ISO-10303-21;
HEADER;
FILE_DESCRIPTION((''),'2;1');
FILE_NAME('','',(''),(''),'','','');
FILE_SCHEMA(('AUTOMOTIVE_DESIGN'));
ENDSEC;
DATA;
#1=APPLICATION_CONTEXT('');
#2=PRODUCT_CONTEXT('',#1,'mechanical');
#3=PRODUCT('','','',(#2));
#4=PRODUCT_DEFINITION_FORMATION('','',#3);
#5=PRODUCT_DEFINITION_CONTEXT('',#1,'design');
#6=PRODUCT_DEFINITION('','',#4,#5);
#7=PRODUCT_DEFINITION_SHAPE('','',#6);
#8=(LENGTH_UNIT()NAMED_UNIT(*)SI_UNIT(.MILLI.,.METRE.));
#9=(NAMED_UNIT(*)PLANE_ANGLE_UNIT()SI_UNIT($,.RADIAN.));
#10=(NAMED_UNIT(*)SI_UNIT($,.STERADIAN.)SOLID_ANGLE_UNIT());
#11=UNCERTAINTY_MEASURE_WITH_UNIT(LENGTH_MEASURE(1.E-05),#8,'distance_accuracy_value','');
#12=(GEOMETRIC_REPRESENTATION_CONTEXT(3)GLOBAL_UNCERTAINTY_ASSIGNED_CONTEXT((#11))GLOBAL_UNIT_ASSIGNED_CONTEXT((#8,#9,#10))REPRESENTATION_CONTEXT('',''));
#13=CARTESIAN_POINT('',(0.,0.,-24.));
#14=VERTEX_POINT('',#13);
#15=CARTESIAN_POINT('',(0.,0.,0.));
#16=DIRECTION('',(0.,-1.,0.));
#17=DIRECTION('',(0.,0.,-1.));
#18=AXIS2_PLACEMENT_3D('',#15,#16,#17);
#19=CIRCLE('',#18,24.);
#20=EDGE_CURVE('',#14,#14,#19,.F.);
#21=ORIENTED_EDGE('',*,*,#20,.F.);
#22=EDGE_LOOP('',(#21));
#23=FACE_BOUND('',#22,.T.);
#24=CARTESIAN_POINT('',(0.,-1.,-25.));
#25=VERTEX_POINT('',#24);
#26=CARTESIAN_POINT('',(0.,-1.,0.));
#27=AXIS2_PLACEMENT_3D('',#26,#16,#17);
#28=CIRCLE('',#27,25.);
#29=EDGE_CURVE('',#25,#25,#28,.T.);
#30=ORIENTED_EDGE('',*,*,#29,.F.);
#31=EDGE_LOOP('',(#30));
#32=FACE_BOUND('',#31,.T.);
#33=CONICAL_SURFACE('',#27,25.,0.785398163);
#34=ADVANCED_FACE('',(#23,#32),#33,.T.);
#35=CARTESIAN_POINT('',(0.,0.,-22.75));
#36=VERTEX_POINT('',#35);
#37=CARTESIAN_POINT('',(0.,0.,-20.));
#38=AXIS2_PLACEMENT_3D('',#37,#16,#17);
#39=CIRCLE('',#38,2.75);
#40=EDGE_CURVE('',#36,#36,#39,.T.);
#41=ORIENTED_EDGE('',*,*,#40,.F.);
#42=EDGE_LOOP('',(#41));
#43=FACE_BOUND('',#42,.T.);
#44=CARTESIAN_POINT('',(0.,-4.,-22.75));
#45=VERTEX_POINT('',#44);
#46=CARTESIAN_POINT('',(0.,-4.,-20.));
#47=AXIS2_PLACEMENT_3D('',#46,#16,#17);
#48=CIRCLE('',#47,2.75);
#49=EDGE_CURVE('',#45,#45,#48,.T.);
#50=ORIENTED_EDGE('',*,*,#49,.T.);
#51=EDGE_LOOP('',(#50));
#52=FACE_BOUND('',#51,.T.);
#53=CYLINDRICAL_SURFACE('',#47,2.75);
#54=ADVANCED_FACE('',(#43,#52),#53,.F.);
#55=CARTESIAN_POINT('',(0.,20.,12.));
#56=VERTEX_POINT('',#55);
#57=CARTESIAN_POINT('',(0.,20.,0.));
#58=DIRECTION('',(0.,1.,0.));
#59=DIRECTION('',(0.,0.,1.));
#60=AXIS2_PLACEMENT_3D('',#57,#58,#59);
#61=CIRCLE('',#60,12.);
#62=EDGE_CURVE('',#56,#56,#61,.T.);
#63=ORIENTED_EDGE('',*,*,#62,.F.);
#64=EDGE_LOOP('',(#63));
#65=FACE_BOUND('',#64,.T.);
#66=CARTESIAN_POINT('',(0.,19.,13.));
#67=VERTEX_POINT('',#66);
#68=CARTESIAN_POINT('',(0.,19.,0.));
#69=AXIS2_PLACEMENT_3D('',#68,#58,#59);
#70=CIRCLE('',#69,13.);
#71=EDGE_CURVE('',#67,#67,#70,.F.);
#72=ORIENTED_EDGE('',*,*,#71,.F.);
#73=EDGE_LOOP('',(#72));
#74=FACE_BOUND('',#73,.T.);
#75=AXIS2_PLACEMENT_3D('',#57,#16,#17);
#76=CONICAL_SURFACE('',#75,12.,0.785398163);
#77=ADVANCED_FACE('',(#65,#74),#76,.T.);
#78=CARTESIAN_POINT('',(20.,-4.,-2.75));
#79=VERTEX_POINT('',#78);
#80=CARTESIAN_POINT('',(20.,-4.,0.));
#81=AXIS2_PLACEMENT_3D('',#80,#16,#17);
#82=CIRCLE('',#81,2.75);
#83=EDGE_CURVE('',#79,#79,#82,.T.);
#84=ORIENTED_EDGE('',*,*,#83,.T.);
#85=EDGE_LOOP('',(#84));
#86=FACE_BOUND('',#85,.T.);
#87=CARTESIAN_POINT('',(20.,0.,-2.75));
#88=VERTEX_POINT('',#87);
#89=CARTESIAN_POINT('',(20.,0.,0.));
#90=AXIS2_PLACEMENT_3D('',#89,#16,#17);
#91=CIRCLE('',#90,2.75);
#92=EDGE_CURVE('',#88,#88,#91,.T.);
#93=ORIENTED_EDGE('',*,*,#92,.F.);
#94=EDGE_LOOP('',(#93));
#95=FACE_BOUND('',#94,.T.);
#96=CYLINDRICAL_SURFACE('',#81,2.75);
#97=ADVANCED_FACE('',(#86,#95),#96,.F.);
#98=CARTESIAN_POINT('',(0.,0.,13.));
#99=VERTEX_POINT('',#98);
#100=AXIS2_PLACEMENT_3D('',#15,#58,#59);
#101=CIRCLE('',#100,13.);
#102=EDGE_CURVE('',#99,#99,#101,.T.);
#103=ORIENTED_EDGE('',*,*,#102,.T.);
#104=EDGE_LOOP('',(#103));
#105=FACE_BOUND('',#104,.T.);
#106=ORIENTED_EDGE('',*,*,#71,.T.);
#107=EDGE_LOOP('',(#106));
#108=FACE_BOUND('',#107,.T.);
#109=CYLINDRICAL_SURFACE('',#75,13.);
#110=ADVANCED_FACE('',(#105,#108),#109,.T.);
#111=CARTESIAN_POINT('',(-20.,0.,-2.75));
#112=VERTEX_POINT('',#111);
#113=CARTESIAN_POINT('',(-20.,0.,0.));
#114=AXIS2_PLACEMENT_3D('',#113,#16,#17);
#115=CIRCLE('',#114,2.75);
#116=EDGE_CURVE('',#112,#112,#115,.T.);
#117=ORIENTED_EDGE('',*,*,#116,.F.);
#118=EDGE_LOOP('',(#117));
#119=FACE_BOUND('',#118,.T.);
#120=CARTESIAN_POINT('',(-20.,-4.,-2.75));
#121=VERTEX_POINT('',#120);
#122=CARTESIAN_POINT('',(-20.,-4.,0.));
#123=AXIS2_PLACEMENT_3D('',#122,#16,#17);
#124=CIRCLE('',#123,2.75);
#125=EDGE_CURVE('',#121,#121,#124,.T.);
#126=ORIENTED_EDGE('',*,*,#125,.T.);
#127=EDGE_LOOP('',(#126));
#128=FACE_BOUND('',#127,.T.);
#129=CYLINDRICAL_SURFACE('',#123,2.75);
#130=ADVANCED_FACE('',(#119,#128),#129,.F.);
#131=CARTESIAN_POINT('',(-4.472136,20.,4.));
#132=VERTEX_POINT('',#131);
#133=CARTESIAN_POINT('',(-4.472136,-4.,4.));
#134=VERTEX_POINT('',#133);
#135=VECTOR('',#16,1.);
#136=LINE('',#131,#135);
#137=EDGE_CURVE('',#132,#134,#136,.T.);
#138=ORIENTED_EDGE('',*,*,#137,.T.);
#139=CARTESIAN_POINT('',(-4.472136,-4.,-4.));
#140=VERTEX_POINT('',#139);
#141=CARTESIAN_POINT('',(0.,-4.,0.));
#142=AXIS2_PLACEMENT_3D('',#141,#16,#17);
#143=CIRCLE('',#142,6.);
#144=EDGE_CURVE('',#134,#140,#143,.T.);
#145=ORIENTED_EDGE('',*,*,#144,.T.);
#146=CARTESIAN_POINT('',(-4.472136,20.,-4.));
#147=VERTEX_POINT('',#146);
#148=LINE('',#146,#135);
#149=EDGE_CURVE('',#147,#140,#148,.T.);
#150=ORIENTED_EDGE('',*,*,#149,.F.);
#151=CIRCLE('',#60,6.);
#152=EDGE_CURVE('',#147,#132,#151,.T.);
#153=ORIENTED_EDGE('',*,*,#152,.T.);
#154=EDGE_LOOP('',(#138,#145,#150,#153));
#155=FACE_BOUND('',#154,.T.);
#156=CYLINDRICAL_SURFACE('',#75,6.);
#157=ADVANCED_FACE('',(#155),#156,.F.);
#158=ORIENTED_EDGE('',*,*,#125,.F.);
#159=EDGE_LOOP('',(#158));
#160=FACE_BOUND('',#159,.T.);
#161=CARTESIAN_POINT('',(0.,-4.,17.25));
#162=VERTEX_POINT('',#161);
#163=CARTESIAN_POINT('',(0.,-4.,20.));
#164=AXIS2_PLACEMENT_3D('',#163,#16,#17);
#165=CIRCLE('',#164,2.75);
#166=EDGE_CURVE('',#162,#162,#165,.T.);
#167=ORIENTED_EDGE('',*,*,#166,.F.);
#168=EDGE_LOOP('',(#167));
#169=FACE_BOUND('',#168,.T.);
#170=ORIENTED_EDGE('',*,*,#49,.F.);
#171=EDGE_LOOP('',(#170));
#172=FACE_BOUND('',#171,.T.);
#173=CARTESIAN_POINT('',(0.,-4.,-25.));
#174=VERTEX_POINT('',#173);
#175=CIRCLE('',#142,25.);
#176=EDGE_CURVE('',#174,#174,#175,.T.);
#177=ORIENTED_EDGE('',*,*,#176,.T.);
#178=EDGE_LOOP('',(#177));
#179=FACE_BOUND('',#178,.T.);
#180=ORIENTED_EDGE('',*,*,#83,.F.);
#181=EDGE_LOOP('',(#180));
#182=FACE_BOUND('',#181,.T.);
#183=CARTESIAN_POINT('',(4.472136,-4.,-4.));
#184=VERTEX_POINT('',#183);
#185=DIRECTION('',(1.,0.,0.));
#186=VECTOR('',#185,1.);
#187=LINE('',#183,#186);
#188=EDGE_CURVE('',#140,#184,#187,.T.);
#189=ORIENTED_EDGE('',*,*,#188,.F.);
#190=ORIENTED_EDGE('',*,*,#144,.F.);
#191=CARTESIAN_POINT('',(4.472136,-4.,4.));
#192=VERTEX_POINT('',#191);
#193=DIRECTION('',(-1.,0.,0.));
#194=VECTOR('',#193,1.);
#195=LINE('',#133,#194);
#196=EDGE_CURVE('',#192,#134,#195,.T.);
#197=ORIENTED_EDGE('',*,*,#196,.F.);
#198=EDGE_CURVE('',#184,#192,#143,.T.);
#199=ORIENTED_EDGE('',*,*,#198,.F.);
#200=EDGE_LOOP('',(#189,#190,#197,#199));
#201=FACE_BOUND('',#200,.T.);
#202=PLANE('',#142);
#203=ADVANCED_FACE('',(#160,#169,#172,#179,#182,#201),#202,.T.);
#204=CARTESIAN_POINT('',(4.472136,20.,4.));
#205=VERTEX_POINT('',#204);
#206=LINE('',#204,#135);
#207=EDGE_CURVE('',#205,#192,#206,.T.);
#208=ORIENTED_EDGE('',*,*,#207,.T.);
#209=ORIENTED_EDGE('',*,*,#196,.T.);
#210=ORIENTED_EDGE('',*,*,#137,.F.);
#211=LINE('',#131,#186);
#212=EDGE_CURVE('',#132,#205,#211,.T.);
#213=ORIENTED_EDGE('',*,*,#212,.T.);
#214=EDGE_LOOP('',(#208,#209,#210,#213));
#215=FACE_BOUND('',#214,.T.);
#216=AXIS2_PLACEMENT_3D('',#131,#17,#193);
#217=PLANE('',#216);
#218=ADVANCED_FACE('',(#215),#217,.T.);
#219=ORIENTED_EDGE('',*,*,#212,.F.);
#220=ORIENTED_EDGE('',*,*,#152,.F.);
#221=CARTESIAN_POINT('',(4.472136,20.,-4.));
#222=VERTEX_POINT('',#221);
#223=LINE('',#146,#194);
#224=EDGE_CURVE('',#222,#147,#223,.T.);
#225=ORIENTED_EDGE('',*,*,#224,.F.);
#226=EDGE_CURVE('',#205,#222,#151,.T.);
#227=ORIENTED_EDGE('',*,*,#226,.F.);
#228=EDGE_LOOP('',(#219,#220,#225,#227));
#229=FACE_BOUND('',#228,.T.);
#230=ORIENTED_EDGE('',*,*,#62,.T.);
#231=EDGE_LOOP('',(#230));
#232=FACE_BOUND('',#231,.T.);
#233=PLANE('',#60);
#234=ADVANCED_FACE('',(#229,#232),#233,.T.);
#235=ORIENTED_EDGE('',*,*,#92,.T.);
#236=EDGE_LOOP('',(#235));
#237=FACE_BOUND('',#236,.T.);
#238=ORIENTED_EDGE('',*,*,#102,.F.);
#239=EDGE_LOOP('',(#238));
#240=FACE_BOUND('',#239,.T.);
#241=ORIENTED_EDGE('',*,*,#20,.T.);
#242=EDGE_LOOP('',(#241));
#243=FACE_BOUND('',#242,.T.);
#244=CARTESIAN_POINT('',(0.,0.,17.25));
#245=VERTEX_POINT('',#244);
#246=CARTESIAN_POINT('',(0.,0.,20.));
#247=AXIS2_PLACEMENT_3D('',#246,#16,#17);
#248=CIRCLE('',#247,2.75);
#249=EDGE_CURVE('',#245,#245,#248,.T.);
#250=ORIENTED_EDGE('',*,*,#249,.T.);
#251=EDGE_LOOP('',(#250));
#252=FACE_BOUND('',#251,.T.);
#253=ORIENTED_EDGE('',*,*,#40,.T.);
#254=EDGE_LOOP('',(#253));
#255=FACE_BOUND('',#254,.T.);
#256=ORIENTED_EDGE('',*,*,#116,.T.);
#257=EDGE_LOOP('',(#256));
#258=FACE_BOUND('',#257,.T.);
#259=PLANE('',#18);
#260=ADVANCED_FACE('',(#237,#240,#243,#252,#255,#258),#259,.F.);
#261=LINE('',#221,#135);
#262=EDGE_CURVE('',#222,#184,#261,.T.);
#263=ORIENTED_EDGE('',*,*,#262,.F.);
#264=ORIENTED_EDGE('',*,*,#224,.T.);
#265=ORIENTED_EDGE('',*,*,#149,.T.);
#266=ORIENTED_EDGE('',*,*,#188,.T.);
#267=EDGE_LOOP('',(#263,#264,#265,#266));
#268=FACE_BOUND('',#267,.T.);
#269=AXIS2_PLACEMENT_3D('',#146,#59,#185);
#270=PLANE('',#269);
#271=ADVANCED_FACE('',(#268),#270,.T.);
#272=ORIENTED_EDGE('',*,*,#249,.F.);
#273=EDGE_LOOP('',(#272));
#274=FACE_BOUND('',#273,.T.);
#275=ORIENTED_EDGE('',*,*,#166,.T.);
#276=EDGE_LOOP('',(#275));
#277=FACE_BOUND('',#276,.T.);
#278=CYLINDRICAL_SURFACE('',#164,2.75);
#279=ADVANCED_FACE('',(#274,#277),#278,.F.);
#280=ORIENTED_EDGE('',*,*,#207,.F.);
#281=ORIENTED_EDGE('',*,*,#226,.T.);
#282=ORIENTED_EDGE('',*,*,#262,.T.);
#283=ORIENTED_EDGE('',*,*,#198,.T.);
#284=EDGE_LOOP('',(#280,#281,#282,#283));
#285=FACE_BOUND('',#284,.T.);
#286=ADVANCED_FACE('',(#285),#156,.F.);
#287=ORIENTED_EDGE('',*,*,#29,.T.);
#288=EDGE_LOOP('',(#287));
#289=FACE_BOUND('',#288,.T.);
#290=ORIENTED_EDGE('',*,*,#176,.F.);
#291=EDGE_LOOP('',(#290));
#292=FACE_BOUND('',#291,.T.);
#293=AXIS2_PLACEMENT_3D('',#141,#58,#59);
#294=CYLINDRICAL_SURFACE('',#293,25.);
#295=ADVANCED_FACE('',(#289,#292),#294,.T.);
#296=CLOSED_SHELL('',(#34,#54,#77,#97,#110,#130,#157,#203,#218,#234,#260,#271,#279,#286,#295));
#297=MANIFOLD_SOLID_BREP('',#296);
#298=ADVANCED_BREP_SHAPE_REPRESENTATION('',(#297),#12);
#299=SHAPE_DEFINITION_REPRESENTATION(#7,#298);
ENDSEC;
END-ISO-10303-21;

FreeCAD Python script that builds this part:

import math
import FreeCAD as App
import Part
import Sketcher


def edges_at(feature, points):
    """Names of the edges that pass closest to the given points."""
    edges = feature.Shape.Edges
    near = lambda p: min(range(len(edges)), key=lambda i: edges[i].distToShape(Part.Vertex(*p))[0])
    return sorted({f"Edge{near(p) + 1}" for p in points})

doc = App.newDocument("Part")
body = doc.addObject("PartDesign::Body", "Body")

# Sketch on XZ plane
sketch1 = body.newObject("Sketcher::SketchObject", "Sketch")
sketch1.AttachmentSupport = (doc.getObject("XZ_Plane"), [""])
sketch1.MapMode = "FlatFace"
sketch1.addGeometry(Part.Circle(App.Vector(0, 0, 0), App.Vector(0, 0, 1), 13), False)
sketch1.addGeometry(Part.ArcOfCircle(Part.Circle(App.Vector(0, 0, 0), App.Vector(0, 0, 1), 6), math.radians(138), math.radians(222)), False)
sketch1.addGeometry(Part.LineSegment(App.Vector(-4, -4, 0), App.Vector(4, -4, 0)), False)
sketch1.addGeometry(Part.ArcOfCircle(Part.Circle(App.Vector(0, 0, 0), App.Vector(0, 0, 1), 6), math.radians(-42), math.radians(42)), False)
sketch1.addGeometry(Part.LineSegment(App.Vector(4, 4, 0), App.Vector(-4, 4, 0)), False)
sketch1.addConstraint(Sketcher.Constraint("Coincident", 1, 2, 2, 1))
sketch1.addConstraint(Sketcher.Constraint("Coincident", 2, 2, 3, 1))
sketch1.addConstraint(Sketcher.Constraint("Coincident", 3, 2, 4, 1))
sketch1.addConstraint(Sketcher.Constraint("Coincident", 4, 2, 1, 1))
sketch1.addConstraint(Sketcher.Constraint("Horizontal", 2))
sketch1.addConstraint(Sketcher.Constraint("Horizontal", 4))
sketch1.addConstraint(Sketcher.Constraint("Coincident", 0, 3, -1, 1))
sketch1.addConstraint(Sketcher.Constraint("Coincident", 1, 3, -1, 1))
sketch1.addConstraint(Sketcher.Constraint("Coincident", 3, 3, -1, 1))
sketch1.addConstraint(Sketcher.Constraint("Equal", 1, 3))
sketch1.addConstraint(Sketcher.Constraint("Vertical", 2, 2, 3, 2))
sketch1.addConstraint(Sketcher.Constraint("Diameter", 0, 26.0))
sketch1.addConstraint(Sketcher.Constraint("Radius", 1, 6.0))
sketch1.addConstraint(Sketcher.Constraint("DistanceY", 1, 2, -1, 1, 4.0))
pad1 = body.newObject("PartDesign::Pad", "Pad")
pad1.Profile = sketch1
pad1.Length = 20
pad1.Reversed = True

# Sketch on XZ plane
sketch2 = body.newObject("Sketcher::SketchObject", "Sketch001")
sketch2.AttachmentSupport = (doc.getObject("XZ_Plane"), [""])
sketch2.MapMode = "FlatFace"
sketch2.AttachmentOffset = App.Placement(App.Vector(0, 0, 4), App.Rotation())
sketch2.addGeometry(Part.Circle(App.Vector(0, 0, 0), App.Vector(0, 0, 1), 25), False)
sketch2.addGeometry(Part.ArcOfCircle(Part.Circle(App.Vector(0, 0, 0), App.Vector(0, 0, 1), 6), math.radians(-42), math.radians(42)), False)
sketch2.addGeometry(Part.LineSegment(App.Vector(4, -4, 0), App.Vector(-4, -4, 0)), False)
sketch2.addGeometry(Part.ArcOfCircle(Part.Circle(App.Vector(0, 0, 0), App.Vector(0, 0, 1), 6), math.radians(138), math.radians(222)), False)
sketch2.addGeometry(Part.LineSegment(App.Vector(-4, 4, 0), App.Vector(4, 4, 0)), False)
sketch2.addConstraint(Sketcher.Constraint("Coincident", 1, 1, 2, 1))
sketch2.addConstraint(Sketcher.Constraint("Coincident", 2, 2, 3, 2))
sketch2.addConstraint(Sketcher.Constraint("Coincident", 3, 1, 4, 1))
sketch2.addConstraint(Sketcher.Constraint("Coincident", 4, 2, 1, 2))
sketch2.addConstraint(Sketcher.Constraint("Horizontal", 2))
sketch2.addConstraint(Sketcher.Constraint("Horizontal", 4))
sketch2.addConstraint(Sketcher.Constraint("Coincident", 0, 3, -1, 1))
sketch2.addConstraint(Sketcher.Constraint("Coincident", 1, 3, -1, 1))
sketch2.addConstraint(Sketcher.Constraint("Coincident", 3, 3, -1, 1))
sketch2.addConstraint(Sketcher.Constraint("Equal", 1, 3))
sketch2.addConstraint(Sketcher.Constraint("Vertical", 2, 2, 3, 1))
sketch2.addConstraint(Sketcher.Constraint("Diameter", 0, 50.0))
sketch2.addConstraint(Sketcher.Constraint("Radius", 1, 6.0))
sketch2.addConstraint(Sketcher.Constraint("DistanceY", 1, 1, -1, 1, 4.0))
pad2 = body.newObject("PartDesign::Pad", "Pad001")
pad2.Profile = sketch2
pad2.Length = 4
pad2.Reversed = True

# Sketch on XZ plane
sketch3 = body.newObject("Sketcher::SketchObject", "Sketch002")
sketch3.AttachmentSupport = (doc.getObject("XZ_Plane"), [""])
sketch3.MapMode = "FlatFace"
sketch3.AttachmentOffset = App.Placement(App.Vector(0, 0, 4), App.Rotation())
sketch3.addGeometry(Part.Circle(App.Vector(0, -20, 0), App.Vector(0, 0, 1), 2.8), False)
sketch3.addGeometry(Part.Circle(App.Vector(-20, 0, 0), App.Vector(0, 0, 1), 2.8), False)
sketch3.addGeometry(Part.Circle(App.Vector(0, 20, 0), App.Vector(0, 0, 1), 2.8), False)
sketch3.addGeometry(Part.Circle(App.Vector(20, 0, 0), App.Vector(0, 0, 1), 2.8), False)
sketch3.addConstraint(Sketcher.Constraint("Equal", 0, 1))
sketch3.addConstraint(Sketcher.Constraint("Equal", 1, 2))
sketch3.addConstraint(Sketcher.Constraint("Equal", 2, 3))
sketch3.addConstraint(Sketcher.Constraint("Symmetric", 0, 3, 2, 3, -1, 1))
sketch3.addConstraint(Sketcher.Constraint("Symmetric", 1, 3, 3, 3, -1, 1))
sketch3.addConstraint(Sketcher.Constraint("PointOnObject", 0, 3, -2))
sketch3.addConstraint(Sketcher.Constraint("PointOnObject", 1, 3, -1))
sketch3.addConstraint(Sketcher.Constraint("Diameter", 0, 5.5))
sketch3.addConstraint(Sketcher.Constraint("DistanceY", 0, 3, -1, 1, 20.0))
sketch3.addConstraint(Sketcher.Constraint("DistanceX", 1, 3, -1, 1, 20.0))
doc.recompute()
hole = body.newObject("PartDesign::Hole", "Hole")
hole.Profile = sketch3
hole.ThreadType = "None"
hole.Diameter = 5.5
hole.DepthType = "Dimension"
hole.Depth = 25
hole.DrillPoint = "Angled"
hole.DrillPointAngle = 118
doc.recompute()

chamfer = body.newObject("PartDesign::Chamfer", "Chamfer")
chamfer.Base = (hole, edges_at(hole, [(0, 0, 25), (0, 20, -13)]))
chamfer.Size = 1

doc.recompute()
